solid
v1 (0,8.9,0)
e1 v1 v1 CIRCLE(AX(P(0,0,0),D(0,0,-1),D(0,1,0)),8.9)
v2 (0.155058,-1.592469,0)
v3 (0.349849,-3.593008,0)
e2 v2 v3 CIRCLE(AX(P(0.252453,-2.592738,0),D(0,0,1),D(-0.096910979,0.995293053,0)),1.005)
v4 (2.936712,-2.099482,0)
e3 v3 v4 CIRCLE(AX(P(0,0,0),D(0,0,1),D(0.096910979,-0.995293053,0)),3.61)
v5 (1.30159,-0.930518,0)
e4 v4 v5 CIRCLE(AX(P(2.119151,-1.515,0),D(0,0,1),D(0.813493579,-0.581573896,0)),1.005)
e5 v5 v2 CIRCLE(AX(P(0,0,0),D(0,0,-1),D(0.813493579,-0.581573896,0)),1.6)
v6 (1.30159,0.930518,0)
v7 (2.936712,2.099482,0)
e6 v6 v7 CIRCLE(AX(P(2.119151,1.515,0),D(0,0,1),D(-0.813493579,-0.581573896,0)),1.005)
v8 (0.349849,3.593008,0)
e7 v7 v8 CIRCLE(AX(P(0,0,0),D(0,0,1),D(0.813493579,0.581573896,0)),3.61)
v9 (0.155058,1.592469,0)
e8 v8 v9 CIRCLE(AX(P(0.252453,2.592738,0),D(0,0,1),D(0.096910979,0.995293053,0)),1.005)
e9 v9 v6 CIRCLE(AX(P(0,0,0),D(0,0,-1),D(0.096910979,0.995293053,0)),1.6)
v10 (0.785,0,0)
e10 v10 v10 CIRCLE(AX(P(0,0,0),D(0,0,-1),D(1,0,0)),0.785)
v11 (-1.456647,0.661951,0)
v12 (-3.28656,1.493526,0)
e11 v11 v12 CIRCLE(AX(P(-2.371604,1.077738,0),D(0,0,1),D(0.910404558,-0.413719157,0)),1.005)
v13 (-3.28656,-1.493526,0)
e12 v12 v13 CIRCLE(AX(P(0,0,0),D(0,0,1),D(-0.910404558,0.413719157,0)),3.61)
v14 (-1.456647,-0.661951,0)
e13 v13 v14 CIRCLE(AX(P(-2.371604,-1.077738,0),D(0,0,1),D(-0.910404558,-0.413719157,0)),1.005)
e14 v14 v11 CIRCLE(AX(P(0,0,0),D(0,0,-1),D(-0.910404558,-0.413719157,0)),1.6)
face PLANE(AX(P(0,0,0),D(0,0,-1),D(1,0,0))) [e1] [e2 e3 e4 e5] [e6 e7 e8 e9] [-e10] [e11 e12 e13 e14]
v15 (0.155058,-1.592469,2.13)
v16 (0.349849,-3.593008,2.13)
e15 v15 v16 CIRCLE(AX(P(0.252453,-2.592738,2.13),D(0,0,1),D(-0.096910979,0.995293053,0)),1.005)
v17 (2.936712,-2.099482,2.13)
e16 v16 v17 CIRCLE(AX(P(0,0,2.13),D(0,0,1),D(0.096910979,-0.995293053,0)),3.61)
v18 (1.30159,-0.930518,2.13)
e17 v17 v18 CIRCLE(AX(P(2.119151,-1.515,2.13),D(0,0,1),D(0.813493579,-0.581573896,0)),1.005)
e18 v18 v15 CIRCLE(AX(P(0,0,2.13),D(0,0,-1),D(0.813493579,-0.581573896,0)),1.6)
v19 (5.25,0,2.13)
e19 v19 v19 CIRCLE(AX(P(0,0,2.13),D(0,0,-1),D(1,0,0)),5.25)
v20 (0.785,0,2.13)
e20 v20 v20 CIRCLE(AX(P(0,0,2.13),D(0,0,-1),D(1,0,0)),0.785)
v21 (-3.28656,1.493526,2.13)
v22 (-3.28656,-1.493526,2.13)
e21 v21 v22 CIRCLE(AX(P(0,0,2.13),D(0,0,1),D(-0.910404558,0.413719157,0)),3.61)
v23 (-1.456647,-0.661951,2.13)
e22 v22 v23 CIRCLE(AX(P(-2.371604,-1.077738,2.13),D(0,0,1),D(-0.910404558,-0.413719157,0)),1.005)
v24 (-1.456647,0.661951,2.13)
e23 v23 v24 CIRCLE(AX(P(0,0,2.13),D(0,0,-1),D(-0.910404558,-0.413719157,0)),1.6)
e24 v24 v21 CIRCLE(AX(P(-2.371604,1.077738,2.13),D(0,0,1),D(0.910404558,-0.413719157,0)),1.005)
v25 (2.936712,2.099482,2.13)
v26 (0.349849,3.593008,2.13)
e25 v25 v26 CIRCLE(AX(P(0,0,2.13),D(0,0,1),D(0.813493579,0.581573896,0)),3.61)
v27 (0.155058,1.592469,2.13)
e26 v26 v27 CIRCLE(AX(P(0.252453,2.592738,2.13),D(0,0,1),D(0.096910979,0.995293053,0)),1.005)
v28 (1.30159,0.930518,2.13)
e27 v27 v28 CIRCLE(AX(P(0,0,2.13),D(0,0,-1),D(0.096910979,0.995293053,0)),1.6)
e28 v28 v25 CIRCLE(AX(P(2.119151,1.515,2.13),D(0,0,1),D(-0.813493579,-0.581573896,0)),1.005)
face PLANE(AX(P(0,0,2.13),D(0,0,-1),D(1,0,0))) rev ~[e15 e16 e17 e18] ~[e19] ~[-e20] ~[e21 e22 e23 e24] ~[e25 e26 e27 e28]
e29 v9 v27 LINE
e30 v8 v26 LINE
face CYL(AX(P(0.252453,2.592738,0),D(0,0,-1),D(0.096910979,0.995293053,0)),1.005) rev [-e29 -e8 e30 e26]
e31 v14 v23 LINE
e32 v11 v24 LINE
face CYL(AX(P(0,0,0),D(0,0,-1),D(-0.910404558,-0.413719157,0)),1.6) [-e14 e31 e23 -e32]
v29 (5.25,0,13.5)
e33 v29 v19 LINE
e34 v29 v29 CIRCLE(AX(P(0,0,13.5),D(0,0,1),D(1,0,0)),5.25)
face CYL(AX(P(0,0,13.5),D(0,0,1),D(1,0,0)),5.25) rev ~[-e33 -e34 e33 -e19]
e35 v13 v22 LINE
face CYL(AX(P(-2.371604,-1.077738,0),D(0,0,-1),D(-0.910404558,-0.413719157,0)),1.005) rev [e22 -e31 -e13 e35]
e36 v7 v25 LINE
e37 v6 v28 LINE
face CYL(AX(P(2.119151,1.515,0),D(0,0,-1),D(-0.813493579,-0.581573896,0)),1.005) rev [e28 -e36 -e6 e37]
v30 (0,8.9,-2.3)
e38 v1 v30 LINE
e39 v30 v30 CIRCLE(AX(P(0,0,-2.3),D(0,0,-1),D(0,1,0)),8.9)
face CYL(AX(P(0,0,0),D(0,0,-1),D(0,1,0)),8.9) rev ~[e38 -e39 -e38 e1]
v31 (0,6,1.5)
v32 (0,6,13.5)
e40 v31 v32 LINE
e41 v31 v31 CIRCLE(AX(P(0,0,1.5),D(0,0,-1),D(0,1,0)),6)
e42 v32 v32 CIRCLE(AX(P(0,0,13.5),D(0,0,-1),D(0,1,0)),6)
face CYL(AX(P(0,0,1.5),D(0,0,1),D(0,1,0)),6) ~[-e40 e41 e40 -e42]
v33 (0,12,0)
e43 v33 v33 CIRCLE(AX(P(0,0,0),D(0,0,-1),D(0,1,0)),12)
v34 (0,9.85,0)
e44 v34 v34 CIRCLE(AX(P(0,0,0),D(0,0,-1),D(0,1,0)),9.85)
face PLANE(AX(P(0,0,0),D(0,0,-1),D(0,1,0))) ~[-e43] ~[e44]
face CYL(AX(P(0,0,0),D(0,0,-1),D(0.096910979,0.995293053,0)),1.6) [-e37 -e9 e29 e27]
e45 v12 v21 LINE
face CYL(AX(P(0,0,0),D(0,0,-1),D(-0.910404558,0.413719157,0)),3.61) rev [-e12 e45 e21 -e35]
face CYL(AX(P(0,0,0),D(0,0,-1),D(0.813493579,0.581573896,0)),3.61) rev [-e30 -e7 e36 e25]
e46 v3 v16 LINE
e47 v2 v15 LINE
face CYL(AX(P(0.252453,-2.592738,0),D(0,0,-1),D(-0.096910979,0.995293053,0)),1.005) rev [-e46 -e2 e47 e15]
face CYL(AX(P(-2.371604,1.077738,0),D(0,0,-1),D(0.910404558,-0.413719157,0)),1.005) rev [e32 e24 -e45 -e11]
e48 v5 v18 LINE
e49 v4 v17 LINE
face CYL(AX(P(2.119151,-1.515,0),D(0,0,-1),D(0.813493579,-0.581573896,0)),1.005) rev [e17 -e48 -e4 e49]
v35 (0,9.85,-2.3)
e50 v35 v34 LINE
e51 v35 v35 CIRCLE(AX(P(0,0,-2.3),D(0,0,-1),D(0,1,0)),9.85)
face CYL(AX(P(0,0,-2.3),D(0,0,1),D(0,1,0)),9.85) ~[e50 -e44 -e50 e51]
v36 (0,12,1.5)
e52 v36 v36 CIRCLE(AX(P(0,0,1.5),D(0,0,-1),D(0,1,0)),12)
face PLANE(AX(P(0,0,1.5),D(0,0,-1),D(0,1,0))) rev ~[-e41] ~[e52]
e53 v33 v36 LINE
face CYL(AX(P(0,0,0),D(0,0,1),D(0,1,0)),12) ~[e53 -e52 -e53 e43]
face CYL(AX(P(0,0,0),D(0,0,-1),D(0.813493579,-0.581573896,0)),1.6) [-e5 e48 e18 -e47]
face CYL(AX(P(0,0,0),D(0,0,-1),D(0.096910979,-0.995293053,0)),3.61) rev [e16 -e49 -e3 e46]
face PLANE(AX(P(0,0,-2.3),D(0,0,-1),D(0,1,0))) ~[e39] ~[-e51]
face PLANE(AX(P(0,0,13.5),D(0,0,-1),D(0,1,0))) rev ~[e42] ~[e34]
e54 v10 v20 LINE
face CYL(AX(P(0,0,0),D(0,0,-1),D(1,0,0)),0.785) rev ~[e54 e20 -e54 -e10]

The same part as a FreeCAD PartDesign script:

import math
import FreeCAD as App
import Part
import Sketcher
Q = App.Units.Quantity


def add_polygon(sketch, points):
    """Adds a closed chain of lines whose ends are joined by coincident constraints."""
    first, n = sketch.GeometryCount, len(points)
    for a, b in zip(points, points[1:] + points[:1]):
        sketch.addGeometry(Part.LineSegment(App.Vector(*a, 0), App.Vector(*b, 0)), False)
    for i in range(n):
        sketch.addConstraint(Sketcher.Constraint("Coincident", first + i, 2, first + (i + 1) % n, 1))

doc = App.newDocument("Part")
body = doc.addObject("PartDesign::Body", "Body")

# Sketch on YZ plane
sketch1 = body.newObject("Sketcher::SketchObject", "Sketch")
sketch1.AttachmentSupport = (doc.getObject("YZ_Plane"), [""])
sketch1.MapMode = "FlatFace"
add_polygon(sketch1, [(0, 13.5), (0, 0), (8.9, 0), (8.9, -2.3), (9.8, -2.3), (9.8, 0), (12, 0), (12, 1.5), (6, 1.5), (6, 13.5)])  # lines 0-9
sketch1.addConstraint([
    Sketcher.Constraint("Vertical", 0),
    Sketcher.Constraint("Horizontal", 1),
    Sketcher.Constraint("Vertical", 2),
    Sketcher.Constraint("Horizontal", 3),
    Sketcher.Constraint("Vertical", 4),
    Sketcher.Constraint("Horizontal", 5),
    Sketcher.Constraint("Vertical", 6),
    Sketcher.Constraint("Horizontal", 7),
    Sketcher.Constraint("Vertical", 8),
    Sketcher.Constraint("Horizontal", 9),
    Sketcher.Constraint("Coincident", 0, 2, -1, 1),
    Sketcher.Constraint("PointOnObject", 4, 2, -1),
    Sketcher.Constraint("Equal", 7, 9),
    Sketcher.Constraint("DistanceX", 7, 2, 7, 1, Q("6 mm")),
    Sketcher.Constraint("DistanceY", 8, 1, 8, 2, Q("12 mm")),
    Sketcher.Constraint("DistanceX", 1, 1, 1, 2, Q("8.9 mm")),
    Sketcher.Constraint("DistanceY", 0, 2, 0, 1, Q("13.5 mm")),
    Sketcher.Constraint("DistanceY", 2, 2, 2, 1, Q("2.3 mm")),
    Sketcher.Constraint("DistanceX", 3, 1, 3, 2, Q("0.95 mm")),
])
revolution = body.newObject("PartDesign::Revolution", "Revolution")
revolution.Profile = sketch1
revolution.ReferenceAxis = (sketch1, ["V_Axis"])
revolution.Angle = 360

# Sketch on XY plane
sketch2 = body.newObject("Sketcher::SketchObject", "Sketch001")
sketch2.AttachmentSupport = (doc.getObject("XY_Plane"), [""])
sketch2.MapMode = "FlatFace"
sketch2.AttachmentOffset = App.Placement(App.Vector(0, 0, 13.5), App.Rotation())
sketch2.addGeometry(Part.Circle(App.Vector(0, 0, 0), App.Vector(0, 0, 1), 5), False)
sketch2.addConstraint([
    Sketcher.Constraint("Coincident", 0, 3, -1, 1),
    Sketcher.Constraint("Diameter", 0, Q("10.5 mm")),
])
pocket1 = body.newObject("PartDesign::Pocket", "Pocket")
pocket1.Profile = sketch2
pocket1.Type = "ThroughAll"

# Sketch on XY plane
sketch3 = body.newObject("Sketcher::SketchObject", "Sketch002")
sketch3.AttachmentSupport = (doc.getObject("XY_Plane"), [""])
sketch3.MapMode = "FlatFace"
sketch3.addGeometry([
    Part.Circle(App.Vector(0, 0, 0), App.Vector(0, 0, 1), 5.2),  # 0
    Part.ArcOfCircle(Part.Circle(App.Vector(0, 0, 0), App.Vector(0, 0, 1), 3.6), math.radians(36), math.radians(84)),  # 1
    Part.ArcOfCircle(Part.Circle(App.Vector(0.3, 2.6, 0), App.Vector(0, 0, 1), 1), math.radians(84), math.radians(264)),  # 2
    Part.ArcOfCircle(Part.Circle(App.Vector(0, 0, 0), App.Vector(0, 0, 1), 1.6), math.radians(36), math.radians(84)),  # 3
    Part.ArcOfCircle(Part.Circle(App.Vector(2.1, 1.5, 0), App.Vector(0, 0, 1), 1), math.radians(-144), math.radians(36)),  # 4
    Part.ArcOfCircle(Part.Circle(App.Vector(-2.4, 1.1, 0), App.Vector(0, 0, 1), 1), math.radians(-24), math.radians(156)),  # 5
    Part.ArcOfCircle(Part.Circle(App.Vector(0, 0, 0), App.Vector(0, 0, 1), 3.6), math.radians(156), math.radians(204)),  # 6
    Part.ArcOfCircle(Part.Circle(App.Vector(-2.4, -1.1, 0), App.Vector(0, 0, 1), 1), math.radians(-156), math.radians(24)),  # 7
    Part.ArcOfCircle(Part.Circle(App.Vector(0, 0, 0), App.Vector(0, 0, 1), 1.6), math.radians(156), math.radians(204)),  # 8
    Part.Circle(App.Vector(0, 0, 0), App.Vector(0, 0, 1), 0.8),  # 9
    Part.ArcOfCircle(Part.Circle(App.Vector(0.3, -2.6, 0), App.Vector(0, 0, 1), 1), math.radians(96), math.radians(276)),  # 10
    Part.ArcOfCircle(Part.Circle(App.Vector(0, 0, 0), App.Vector(0, 0, 1), 3.6), math.radians(-84), math.radians(-36)),  # 11
    Part.ArcOfCircle(Part.Circle(App.Vector(2.1, -1.5, 0), App.Vector(0, 0, 1), 1), math.radians(-36), math.radians(144)),  # 12
    Part.ArcOfCircle(Part.Circle(App.Vector(0, 0, 0), App.Vector(0, 0, 1), 1.6), math.radians(-84), math.radians(-36)),  # 13
], False)
sketch3.addConstraint([
    Sketcher.Constraint("Tangent", 1, 2, 2, 1),
    Sketcher.Constraint("Tangent", 2, 2, 3, 2),
    Sketcher.Constraint("Tangent", 3, 1, 4, 1),
    Sketcher.Constraint("Tangent", 4, 2, 1, 1),
    Sketcher.Constraint("Tangent", 5, 2, 6, 1),
    Sketcher.Constraint("Tangent", 6, 2, 7, 1),
    Sketcher.Constraint("Tangent", 7, 2, 8, 2),
    Sketcher.Constraint("Tangent", 8, 1, 5, 1),
    Sketcher.Constraint("Tangent", 10, 2, 11, 1),
    Sketcher.Constraint("Tangent", 11, 2, 12, 1),
    Sketcher.Constraint("Tangent", 12, 2, 13, 2),
    Sketcher.Constraint("Tangent", 13, 1, 10, 1),
    Sketcher.Constraint("Coincident", 0, 3, -1, 1),
    Sketcher.Constraint("Coincident", 1, 3, -1, 1),
    Sketcher.Constraint("Coincident", 3, 3, -1, 1),
    Sketcher.Constraint("Coincident", 6, 3, -1, 1),
    Sketcher.Constraint("Coincident", 8, 3, -1, 1),
    Sketcher.Constraint("Coincident", 9, 3, -1, 1),
    Sketcher.Constraint("Coincident", 11, 3, -1, 1),
    Sketcher.Constraint("Coincident", 13, 3, -1, 1),
    Sketcher.Constraint("Equal", 4, 5),
    Sketcher.Constraint("Equal", 1, 6),
    Sketcher.Constraint("Equal", 7, 10),
    Sketcher.Constraint("Equal", 6, 11),
    Sketcher.Constraint("Vertical", 5, 3, 7, 3),
    Sketcher.Constraint("Vertical", 2, 3, 10, 3),
    Sketcher.Constraint("Vertical", 4, 3, 12, 3),
    Sketcher.Constraint("Diameter", 0, Q("10.5 mm")),
    Sketcher.Constraint("Radius", 3, Q("1.6 mm")),
    Sketcher.Constraint("Diameter", 9, Q("1.57 mm")),
    Sketcher.Constraint("Radius", 1, Q("3.61 mm")),
    Sketcher.Constraint("DistanceY", 11, 2, 3, 1, Q("3.03 mm")),
    Sketcher.Constraint("DistanceY", 5, 3, 2, 3, Q("1.515 mm")),
    Sketcher.Constraint("DistanceY", 7, 2, 8, 1, Q("1.323901 mm")),
])
pad1 = body.newObject("PartDesign::Pad", "Pad")
pad1.Profile = sketch3
pad1.Length = 2.13

doc.recompute()
